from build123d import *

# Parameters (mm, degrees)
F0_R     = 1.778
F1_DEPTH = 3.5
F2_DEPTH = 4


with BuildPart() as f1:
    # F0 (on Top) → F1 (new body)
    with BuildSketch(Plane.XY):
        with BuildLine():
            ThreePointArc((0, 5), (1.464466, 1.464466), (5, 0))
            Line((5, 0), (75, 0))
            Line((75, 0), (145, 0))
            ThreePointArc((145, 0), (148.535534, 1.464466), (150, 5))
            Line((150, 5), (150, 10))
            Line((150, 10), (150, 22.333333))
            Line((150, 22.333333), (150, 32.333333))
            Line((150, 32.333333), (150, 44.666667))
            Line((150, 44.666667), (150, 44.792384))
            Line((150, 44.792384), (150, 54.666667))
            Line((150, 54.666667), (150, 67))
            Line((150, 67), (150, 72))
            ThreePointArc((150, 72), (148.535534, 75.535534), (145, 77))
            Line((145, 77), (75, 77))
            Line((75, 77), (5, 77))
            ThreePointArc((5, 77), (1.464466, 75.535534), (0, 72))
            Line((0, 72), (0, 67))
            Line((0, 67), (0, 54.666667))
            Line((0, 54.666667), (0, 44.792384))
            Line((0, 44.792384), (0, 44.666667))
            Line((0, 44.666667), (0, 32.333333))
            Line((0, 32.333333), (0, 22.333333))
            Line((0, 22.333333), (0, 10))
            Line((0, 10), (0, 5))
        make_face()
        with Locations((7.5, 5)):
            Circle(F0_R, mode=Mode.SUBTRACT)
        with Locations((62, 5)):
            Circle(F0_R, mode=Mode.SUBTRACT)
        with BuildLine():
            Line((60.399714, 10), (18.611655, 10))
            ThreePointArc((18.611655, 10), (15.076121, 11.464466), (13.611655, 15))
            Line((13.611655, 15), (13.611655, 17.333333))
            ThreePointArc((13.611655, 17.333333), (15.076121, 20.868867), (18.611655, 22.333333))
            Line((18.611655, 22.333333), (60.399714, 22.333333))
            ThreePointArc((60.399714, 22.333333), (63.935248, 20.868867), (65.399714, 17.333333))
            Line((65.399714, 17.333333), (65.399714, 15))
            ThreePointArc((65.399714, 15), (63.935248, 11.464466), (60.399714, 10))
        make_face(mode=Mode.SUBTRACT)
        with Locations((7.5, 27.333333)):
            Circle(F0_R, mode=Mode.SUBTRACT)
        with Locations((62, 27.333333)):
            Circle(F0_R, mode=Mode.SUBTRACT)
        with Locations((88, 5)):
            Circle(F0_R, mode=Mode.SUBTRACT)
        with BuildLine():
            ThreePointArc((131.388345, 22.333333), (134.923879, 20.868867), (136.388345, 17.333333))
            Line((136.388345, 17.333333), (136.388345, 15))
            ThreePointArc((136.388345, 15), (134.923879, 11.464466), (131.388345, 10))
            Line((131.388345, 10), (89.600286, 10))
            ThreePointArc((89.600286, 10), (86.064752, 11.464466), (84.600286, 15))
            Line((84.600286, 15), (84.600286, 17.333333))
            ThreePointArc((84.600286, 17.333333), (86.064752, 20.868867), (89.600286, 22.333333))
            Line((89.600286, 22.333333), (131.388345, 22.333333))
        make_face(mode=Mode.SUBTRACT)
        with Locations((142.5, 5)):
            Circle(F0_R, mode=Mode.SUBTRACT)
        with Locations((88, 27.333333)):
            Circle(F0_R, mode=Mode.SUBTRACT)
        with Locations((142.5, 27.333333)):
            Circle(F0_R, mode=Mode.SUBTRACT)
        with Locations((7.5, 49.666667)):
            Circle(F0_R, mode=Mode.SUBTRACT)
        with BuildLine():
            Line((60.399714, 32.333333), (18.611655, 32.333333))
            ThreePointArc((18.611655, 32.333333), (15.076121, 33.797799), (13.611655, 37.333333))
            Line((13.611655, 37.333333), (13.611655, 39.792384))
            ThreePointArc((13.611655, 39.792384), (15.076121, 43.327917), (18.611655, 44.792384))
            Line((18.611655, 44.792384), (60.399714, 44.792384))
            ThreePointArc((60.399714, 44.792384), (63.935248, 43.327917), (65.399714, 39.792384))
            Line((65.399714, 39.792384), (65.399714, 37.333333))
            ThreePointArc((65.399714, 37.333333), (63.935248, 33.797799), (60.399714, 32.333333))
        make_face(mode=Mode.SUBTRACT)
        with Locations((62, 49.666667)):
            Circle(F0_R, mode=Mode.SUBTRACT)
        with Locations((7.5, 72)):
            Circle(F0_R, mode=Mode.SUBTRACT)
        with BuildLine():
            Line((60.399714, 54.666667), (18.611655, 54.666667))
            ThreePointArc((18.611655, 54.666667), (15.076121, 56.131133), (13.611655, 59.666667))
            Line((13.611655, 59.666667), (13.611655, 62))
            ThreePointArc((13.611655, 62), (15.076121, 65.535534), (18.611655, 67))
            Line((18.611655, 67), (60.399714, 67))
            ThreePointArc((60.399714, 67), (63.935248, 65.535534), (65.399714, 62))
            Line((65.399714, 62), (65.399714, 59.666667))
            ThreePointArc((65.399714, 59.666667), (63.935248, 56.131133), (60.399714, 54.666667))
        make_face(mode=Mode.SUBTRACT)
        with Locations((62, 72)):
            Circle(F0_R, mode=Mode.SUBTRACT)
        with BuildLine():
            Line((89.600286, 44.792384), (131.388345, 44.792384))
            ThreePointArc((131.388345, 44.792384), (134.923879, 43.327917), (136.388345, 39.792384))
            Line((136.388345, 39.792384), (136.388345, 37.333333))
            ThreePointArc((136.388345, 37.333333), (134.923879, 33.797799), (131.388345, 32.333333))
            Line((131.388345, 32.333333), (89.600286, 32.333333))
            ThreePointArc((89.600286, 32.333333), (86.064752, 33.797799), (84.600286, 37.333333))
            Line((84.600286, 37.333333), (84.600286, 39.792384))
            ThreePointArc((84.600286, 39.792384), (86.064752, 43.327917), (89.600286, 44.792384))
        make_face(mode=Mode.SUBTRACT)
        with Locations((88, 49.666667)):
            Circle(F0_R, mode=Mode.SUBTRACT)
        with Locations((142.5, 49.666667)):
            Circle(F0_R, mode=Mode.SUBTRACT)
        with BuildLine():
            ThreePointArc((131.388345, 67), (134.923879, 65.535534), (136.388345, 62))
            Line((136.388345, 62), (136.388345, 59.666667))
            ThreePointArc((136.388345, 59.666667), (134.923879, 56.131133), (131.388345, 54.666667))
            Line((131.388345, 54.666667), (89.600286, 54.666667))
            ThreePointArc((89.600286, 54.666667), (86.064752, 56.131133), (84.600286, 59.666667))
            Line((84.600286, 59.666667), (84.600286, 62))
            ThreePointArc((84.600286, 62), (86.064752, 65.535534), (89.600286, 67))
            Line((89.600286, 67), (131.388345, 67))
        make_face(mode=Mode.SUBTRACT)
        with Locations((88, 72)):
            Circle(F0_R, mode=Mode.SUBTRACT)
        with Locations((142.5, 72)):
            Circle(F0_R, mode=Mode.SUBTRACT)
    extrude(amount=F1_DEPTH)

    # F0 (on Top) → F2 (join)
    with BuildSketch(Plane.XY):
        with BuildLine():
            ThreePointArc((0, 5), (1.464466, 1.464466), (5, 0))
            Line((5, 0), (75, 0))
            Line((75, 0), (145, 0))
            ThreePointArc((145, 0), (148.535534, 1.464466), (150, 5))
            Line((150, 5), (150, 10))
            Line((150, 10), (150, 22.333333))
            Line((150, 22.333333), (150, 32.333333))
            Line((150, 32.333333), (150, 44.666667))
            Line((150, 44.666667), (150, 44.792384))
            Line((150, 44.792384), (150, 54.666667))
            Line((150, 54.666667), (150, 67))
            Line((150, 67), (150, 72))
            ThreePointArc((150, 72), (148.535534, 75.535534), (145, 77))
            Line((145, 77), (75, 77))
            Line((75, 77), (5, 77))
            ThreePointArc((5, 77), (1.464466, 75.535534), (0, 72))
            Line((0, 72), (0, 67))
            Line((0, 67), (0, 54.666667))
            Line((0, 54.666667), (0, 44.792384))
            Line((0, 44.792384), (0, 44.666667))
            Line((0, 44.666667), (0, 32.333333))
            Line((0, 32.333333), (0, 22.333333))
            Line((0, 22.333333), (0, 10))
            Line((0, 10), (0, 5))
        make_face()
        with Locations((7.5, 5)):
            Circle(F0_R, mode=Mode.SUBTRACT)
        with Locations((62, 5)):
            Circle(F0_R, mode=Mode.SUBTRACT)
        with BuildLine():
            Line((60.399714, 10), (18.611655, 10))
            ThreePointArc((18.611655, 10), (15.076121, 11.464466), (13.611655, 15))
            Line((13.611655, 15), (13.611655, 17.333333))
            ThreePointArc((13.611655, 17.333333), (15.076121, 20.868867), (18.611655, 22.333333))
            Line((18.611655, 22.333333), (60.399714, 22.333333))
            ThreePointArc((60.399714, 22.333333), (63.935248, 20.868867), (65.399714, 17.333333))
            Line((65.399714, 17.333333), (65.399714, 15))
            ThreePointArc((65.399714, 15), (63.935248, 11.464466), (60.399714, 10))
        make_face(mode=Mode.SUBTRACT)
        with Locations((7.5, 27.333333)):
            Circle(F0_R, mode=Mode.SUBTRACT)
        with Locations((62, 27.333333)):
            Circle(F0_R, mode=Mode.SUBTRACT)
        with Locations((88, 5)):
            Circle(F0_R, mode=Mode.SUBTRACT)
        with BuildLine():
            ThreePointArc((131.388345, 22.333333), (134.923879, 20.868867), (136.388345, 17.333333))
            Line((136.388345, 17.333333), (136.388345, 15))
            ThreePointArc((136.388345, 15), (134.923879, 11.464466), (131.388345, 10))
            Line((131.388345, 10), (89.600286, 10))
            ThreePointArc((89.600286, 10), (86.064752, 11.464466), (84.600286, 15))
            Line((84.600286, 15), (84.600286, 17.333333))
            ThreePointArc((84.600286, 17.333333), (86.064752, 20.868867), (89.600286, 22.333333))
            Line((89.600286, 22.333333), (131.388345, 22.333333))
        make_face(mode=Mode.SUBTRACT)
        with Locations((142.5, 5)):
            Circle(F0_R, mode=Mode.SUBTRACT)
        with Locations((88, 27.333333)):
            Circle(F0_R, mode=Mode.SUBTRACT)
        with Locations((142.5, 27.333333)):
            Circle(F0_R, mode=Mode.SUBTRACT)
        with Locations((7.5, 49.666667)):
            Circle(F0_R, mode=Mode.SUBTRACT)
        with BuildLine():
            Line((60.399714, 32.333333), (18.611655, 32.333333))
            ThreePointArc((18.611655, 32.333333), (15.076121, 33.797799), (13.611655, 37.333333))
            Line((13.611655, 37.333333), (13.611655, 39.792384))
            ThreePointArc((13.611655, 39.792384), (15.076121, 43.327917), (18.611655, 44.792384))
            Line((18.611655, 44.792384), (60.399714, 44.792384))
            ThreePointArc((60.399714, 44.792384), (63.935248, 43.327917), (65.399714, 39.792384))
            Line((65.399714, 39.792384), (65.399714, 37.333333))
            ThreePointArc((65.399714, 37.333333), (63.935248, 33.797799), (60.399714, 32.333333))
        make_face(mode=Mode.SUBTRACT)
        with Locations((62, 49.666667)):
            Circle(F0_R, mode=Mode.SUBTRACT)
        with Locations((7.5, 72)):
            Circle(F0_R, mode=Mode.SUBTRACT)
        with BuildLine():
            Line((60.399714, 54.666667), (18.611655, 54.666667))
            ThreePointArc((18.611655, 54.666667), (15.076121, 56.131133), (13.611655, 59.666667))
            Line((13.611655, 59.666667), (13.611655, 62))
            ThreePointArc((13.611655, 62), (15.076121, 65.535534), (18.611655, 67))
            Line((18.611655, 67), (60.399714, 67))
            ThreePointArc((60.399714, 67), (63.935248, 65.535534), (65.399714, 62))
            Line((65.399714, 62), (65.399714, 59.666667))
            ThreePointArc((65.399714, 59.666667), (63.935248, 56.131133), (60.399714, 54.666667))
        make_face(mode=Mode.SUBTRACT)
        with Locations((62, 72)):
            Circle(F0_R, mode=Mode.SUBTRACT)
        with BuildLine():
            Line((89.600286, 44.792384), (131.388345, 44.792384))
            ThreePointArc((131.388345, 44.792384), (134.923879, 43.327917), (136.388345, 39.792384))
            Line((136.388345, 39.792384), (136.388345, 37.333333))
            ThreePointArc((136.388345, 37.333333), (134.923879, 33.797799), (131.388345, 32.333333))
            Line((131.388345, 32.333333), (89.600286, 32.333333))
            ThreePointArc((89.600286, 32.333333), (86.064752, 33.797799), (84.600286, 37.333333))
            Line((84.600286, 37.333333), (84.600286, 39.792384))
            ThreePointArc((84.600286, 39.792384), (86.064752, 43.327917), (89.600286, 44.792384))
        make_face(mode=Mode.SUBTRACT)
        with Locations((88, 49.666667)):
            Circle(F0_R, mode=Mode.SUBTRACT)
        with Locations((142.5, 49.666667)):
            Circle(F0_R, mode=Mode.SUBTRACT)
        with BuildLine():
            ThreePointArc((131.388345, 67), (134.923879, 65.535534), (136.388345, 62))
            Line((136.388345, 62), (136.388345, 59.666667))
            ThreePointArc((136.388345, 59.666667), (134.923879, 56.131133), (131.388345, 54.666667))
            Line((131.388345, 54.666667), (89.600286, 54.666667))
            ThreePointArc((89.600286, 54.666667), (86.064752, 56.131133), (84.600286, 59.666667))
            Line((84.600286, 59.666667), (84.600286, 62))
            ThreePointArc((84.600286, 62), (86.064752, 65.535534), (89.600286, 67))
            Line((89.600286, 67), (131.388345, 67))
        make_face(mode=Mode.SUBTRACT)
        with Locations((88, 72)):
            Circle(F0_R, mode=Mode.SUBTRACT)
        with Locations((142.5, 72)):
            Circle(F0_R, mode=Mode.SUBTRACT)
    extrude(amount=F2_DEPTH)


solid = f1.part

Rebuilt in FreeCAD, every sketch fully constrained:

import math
import FreeCAD as App
import Part
import Sketcher

V = App.Vector

doc = App.newDocument("Part")
body = doc.addObject("PartDesign::Body", "Body")

sketch1 = doc.addObject("Sketcher::SketchObject", "Sketch")
body.addObject(sketch1)
sketch1.AttachmentSupport = (doc.XY_Plane, [""])
sketch1.MapMode = "FlatFace"
sketch1.addGeometry(Part.ArcOfCircle(Part.Circle(V(5, 5, 0), V(0, 0, 1), 5), math.radians(180), math.radians(270)), False)
sketch1.addGeometry(Part.LineSegment(V(5, 0, 0), V(145, 0, 0)), False)
sketch1.addGeometry(Part.ArcOfCircle(Part.Circle(V(145, 5, 0), V(0, 0, 1), 5), math.radians(-90), math.radians(0)), False)
sketch1.addGeometry(Part.LineSegment(V(150, 5, 0), V(150, 72, 0)), False)
sketch1.addGeometry(Part.ArcOfCircle(Part.Circle(V(145, 72, 0), V(0, 0, 1), 5), math.radians(0), math.radians(90)), False)
sketch1.addGeometry(Part.LineSegment(V(145, 77, 0), V(5, 77, 0)), False)
sketch1.addGeometry(Part.ArcOfCircle(Part.Circle(V(5, 72, 0), V(0, 0, 1), 5), math.radians(90), math.radians(180)), False)
sketch1.addGeometry(Part.LineSegment(V(0, 72, 0), V(0, 5, 0)), False)
sketch1.addGeometry(Part.Circle(V(7.5, 5, 0), V(0, 0, 1), 1.8), False)
sketch1.addGeometry(Part.ArcOfCircle(Part.Circle(V(60.4, 15, 0), V(0, 0, 1), 5), math.radians(-90), math.radians(0)), False)
sketch1.addGeometry(Part.LineSegment(V(60.4, 10, 0), V(18.6, 10, 0)), False)
sketch1.addGeometry(Part.ArcOfCircle(Part.Circle(V(18.6, 15, 0), V(0, 0, 1), 5), math.radians(180), math.radians(270)), False)
sketch1.addGeometry(Part.LineSegment(V(13.6, 15, 0), V(13.6, 17.3, 0)), False)
sketch1.addGeometry(Part.ArcOfCircle(Part.Circle(V(18.6, 17.3, 0), V(0, 0, 1), 5), math.radians(90), math.radians(180)), False)
sketch1.addGeometry(Part.LineSegment(V(18.6, 22.3, 0), V(60.4, 22.3, 0)), False)
sketch1.addGeometry(Part.ArcOfCircle(Part.Circle(V(60.4, 17.3, 0), V(0, 0, 1), 5), math.radians(0), math.radians(90)), False)
sketch1.addGeometry(Part.LineSegment(V(65.4, 17.3, 0), V(65.4, 15, 0)), False)
sketch1.addGeometry(Part.Circle(V(62, 5, 0), V(0, 0, 1), 1.8), False)
sketch1.addGeometry(Part.Circle(V(7.5, 27.3, 0), V(0, 0, 1), 1.8), False)
sketch1.addGeometry(Part.Circle(V(62, 27.3, 0), V(0, 0, 1), 1.8), False)
sketch1.addGeometry(Part.Circle(V(88, 5, 0), V(0, 0, 1), 1.8), False)
sketch1.addGeometry(Part.Circle(V(142.5, 5, 0), V(0, 0, 1), 1.8), False)
sketch1.addGeometry(Part.LineSegment(V(89.6, 22.3, 0), V(131.4, 22.3, 0)), False)
sketch1.addGeometry(Part.ArcOfCircle(Part.Circle(V(131.4, 17.3, 0), V(0, 0, 1), 5), math.radians(0), math.radians(90)), False)
sketch1.addGeometry(Part.LineSegment(V(136.4, 17.3, 0), V(136.4, 15, 0)), False)
sketch1.addGeometry(Part.ArcOfCircle(Part.Circle(V(131.4, 15, 0), V(0, 0, 1), 5), math.radians(-90), math.radians(0)), False)
sketch1.addGeometry(Part.LineSegment(V(131.4, 10, 0), V(89.6, 10, 0)), False)
sketch1.addGeometry(Part.ArcOfCircle(Part.Circle(V(89.6, 15, 0), V(0, 0, 1), 5), math.radians(180), math.radians(270)), False)
sketch1.addGeometry(Part.LineSegment(V(84.6, 15, 0), V(84.6, 17.3, 0)), False)
sketch1.addGeometry(Part.ArcOfCircle(Part.Circle(V(89.6, 17.3, 0), V(0, 0, 1), 5), math.radians(90), math.radians(180)), False)
sketch1.addGeometry(Part.Circle(V(88, 27.3, 0), V(0, 0, 1), 1.8), False)
sketch1.addGeometry(Part.Circle(V(142.5, 27.3, 0), V(0, 0, 1), 1.8), False)
sketch1.addGeometry(Part.ArcOfCircle(Part.Circle(V(60.4, 37.3, 0), V(0, 0, 1), 5), math.radians(-90), math.radians(0)), False)
sketch1.addGeometry(Part.LineSegment(V(60.4, 32.3, 0), V(18.6, 32.3, 0)), False)
sketch1.addGeometry(Part.ArcOfCircle(Part.Circle(V(18.6, 37.3, 0), V(0, 0, 1), 5), math.radians(180), math.radians(270)), False)
sketch1.addGeometry(Part.LineSegment(V(13.6, 37.3, 0), V(13.6, 39.8, 0)), False)
sketch1.addGeometry(Part.ArcOfCircle(Part.Circle(V(18.6, 39.8, 0), V(0, 0, 1), 5), math.radians(90), math.radians(180)), False)
sketch1.addGeometry(Part.LineSegment(V(18.6, 44.8, 0), V(60.4, 44.8, 0)), False)
sketch1.addGeometry(Part.ArcOfCircle(Part.Circle(V(60.4, 39.8, 0), V(0, 0, 1), 5), math.radians(0), math.radians(90)), False)
sketch1.addGeometry(Part.LineSegment(V(65.4, 39.8, 0), V(65.4, 37.3, 0)), False)
sketch1.addGeometry(Part.Circle(V(7.5, 49.7, 0), V(0, 0, 1), 1.8), False)
sketch1.addGeometry(Part.Circle(V(62, 49.7, 0), V(0, 0, 1), 1.8), False)
sketch1.addGeometry(Part.ArcOfCircle(Part.Circle(V(60.4, 59.7, 0), V(0, 0, 1), 5), math.radians(-90), math.radians(0)), False)
sketch1.addGeometry(Part.LineSegment(V(60.4, 54.7, 0), V(18.6, 54.7, 0)), False)
sketch1.addGeometry(Part.ArcOfCircle(Part.Circle(V(18.6, 59.7, 0), V(0, 0, 1), 5), math.radians(180), math.radians(270)), False)
sketch1.addGeometry(Part.LineSegment(V(13.6, 59.7, 0), V(13.6, 62, 0)), False)
sketch1.addGeometry(Part.ArcOfCircle(Part.Circle(V(18.6, 62, 0), V(0, 0, 1), 5), math.radians(90), math.radians(180)), False)
sketch1.addGeometry(Part.LineSegment(V(18.6, 67, 0), V(60.4, 67, 0)), False)
sketch1.addGeometry(Part.ArcOfCircle(Part.Circle(V(60.4, 62, 0), V(0, 0, 1), 5), math.radians(0), math.radians(90)), False)
sketch1.addGeometry(Part.LineSegment(V(65.4, 62, 0), V(65.4, 59.7, 0)), False)
sketch1.addGeometry(Part.Circle(V(7.5, 72, 0), V(0, 0, 1), 1.8), False)
sketch1.addGeometry(Part.Circle(V(62, 72, 0), V(0, 0, 1), 1.8), False)
sketch1.addGeometry(Part.Circle(V(88, 49.7, 0), V(0, 0, 1), 1.8), False)
sketch1.addGeometry(Part.ArcOfCircle(Part.Circle(V(89.6, 39.8, 0), V(0, 0, 1), 5), math.radians(90), math.radians(180)), False)
sketch1.addGeometry(Part.LineSegment(V(89.6, 44.8, 0), V(131.4, 44.8, 0)), False)
sketch1.addGeometry(Part.ArcOfCircle(Part.Circle(V(131.4, 39.8, 0), V(0, 0, 1), 5), math.radians(0), math.radians(90)), False)
sketch1.addGeometry(Part.LineSegment(V(136.4, 39.8, 0), V(136.4, 37.3, 0)), False)
sketch1.addGeometry(Part.ArcOfCircle(Part.Circle(V(131.4, 37.3, 0), V(0, 0, 1), 5), math.radians(-90), math.radians(0)), False)
sketch1.addGeometry(Part.LineSegment(V(131.4, 32.3, 0), V(89.6, 32.3, 0)), False)
sketch1.addGeometry(Part.ArcOfCircle(Part.Circle(V(89.6, 37.3, 0), V(0, 0, 1), 5), math.radians(180), math.radians(270)), False)
sketch1.addGeometry(Part.LineSegment(V(84.6, 37.3, 0), V(84.6, 39.8, 0)), False)
sketch1.addGeometry(Part.Circle(V(142.5, 49.7, 0), V(0, 0, 1), 1.8), False)
sketch1.addGeometry(Part.Circle(V(88, 72, 0), V(0, 0, 1), 1.8), False)
sketch1.addGeometry(Part.LineSegment(V(89.6, 67, 0), V(131.4, 67, 0)), False)
sketch1.addGeometry(Part.ArcOfCircle(Part.Circle(V(131.4, 62, 0), V(0, 0, 1), 5), math.radians(0), math.radians(90)), False)
sketch1.addGeometry(Part.LineSegment(V(136.4, 62, 0), V(136.4, 59.7, 0)), False)
sketch1.addGeometry(Part.ArcOfCircle(Part.Circle(V(131.4, 59.7, 0), V(0, 0, 1), 5), math.radians(-90), math.radians(0)), False)
sketch1.addGeometry(Part.LineSegment(V(131.4, 54.7, 0), V(89.6, 54.7, 0)), False)
sketch1.addGeometry(Part.ArcOfCircle(Part.Circle(V(89.6, 59.7, 0), V(0, 0, 1), 5), math.radians(180), math.radians(270)), False)
sketch1.addGeometry(Part.LineSegment(V(84.6, 59.7, 0), V(84.6, 62, 0)), False)
sketch1.addGeometry(Part.ArcOfCircle(Part.Circle(V(89.6, 62, 0), V(0, 0, 1), 5), math.radians(90), math.radians(180)), False)
sketch1.addGeometry(Part.Circle(V(142.5, 72, 0), V(0, 0, 1), 1.8), False)
sketch1.addConstraint(Sketcher.Constraint("Tangent", 0, 2, 1, 1))
sketch1.addConstraint(Sketcher.Constraint("Tangent", 1, 2, 2, 1))
sketch1.addConstraint(Sketcher.Constraint("Tangent", 2, 2, 3, 1))
sketch1.addConstraint(Sketcher.Constraint("Tangent", 3, 2, 4, 1))
sketch1.addConstraint(Sketcher.Constraint("Tangent", 4, 2, 5, 1))
sketch1.addConstraint(Sketcher.Constraint("Tangent", 5, 2, 6, 1))
sketch1.addConstraint(Sketcher.Constraint("Tangent", 6, 2, 7, 1))
sketch1.addConstraint(Sketcher.Constraint("Tangent", 7, 2, 0, 1))
sketch1.addConstraint(Sketcher.Constraint("Tangent", 9, 1, 10, 1))
sketch1.addConstraint(Sketcher.Constraint("Tangent", 10, 2, 11, 2))
sketch1.addConstraint(Sketcher.Constraint("Tangent", 11, 1, 12, 1))
sketch1.addConstraint(Sketcher.Constraint("Tangent", 12, 2, 13, 2))
sketch1.addConstraint(Sketcher.Constraint("Tangent", 13, 1, 14, 1))
sketch1.addConstraint(Sketcher.Constraint("Tangent", 14, 2, 15, 2))
sketch1.addConstraint(Sketcher.Constraint("Tangent", 15, 1, 16, 1))
sketch1.addConstraint(Sketcher.Constraint("Tangent", 16, 2, 9, 2))
sketch1.addConstraint(Sketcher.Constraint("Tangent", 22, 2, 23, 2))
sketch1.addConstraint(Sketcher.Constraint("Tangent", 23, 1, 24, 1))
sketch1.addConstraint(Sketcher.Constraint("Tangent", 24, 2, 25, 2))
sketch1.addConstraint(Sketcher.Constraint("Tangent", 25, 1, 26, 1))
sketch1.addConstraint(Sketcher.Constraint("Tangent", 26, 2, 27, 2))
sketch1.addConstraint(Sketcher.Constraint("Tangent", 27, 1, 28, 1))
sketch1.addConstraint(Sketcher.Constraint("Tangent", 28, 2, 29, 2))
sketch1.addConstraint(Sketcher.Constraint("Tangent", 29, 1, 22, 1))
sketch1.addConstraint(Sketcher.Constraint("Tangent", 32, 1, 33, 1))
sketch1.addConstraint(Sketcher.Constraint("Tangent", 33, 2, 34, 2))
sketch1.addConstraint(Sketcher.Constraint("Tangent", 34, 1, 35, 1))
sketch1.addConstraint(Sketcher.Constraint("Tangent", 35, 2, 36, 2))
sketch1.addConstraint(Sketcher.Constraint("Tangent", 36, 1, 37, 1))
sketch1.addConstraint(Sketcher.Constraint("Tangent", 37, 2, 38, 2))
sketch1.addConstraint(Sketcher.Constraint("Tangent", 38, 1, 39, 1))
sketch1.addConstraint(Sketcher.Constraint("Tangent", 39, 2, 32, 2))
sketch1.addConstraint(Sketcher.Constraint("Tangent", 42, 1, 43, 1))
sketch1.addConstraint(Sketcher.Constraint("Tangent", 43, 2, 44, 2))
sketch1.addConstraint(Sketcher.Constraint("Tangent", 44, 1, 45, 1))
sketch1.addConstraint(Sketcher.Constraint("Tangent", 45, 2, 46, 2))
sketch1.addConstraint(Sketcher.Constraint("Tangent", 46, 1, 47, 1))
sketch1.addConstraint(Sketcher.Constraint("Tangent", 47, 2, 48, 2))
sketch1.addConstraint(Sketcher.Constraint("Tangent", 48, 1, 49, 1))
sketch1.addConstraint(Sketcher.Constraint("Tangent", 49, 2, 42, 2))
sketch1.addConstraint(Sketcher.Constraint("Tangent", 53, 1, 54, 1))
sketch1.addConstraint(Sketcher.Constraint("Tangent", 54, 2, 55, 2))
sketch1.addConstraint(Sketcher.Constraint("Tangent", 55, 1, 56, 1))
sketch1.addConstraint(Sketcher.Constraint("Tangent", 56, 2, 57, 2))
sketch1.addConstraint(Sketcher.Constraint("Tangent", 57, 1, 58, 1))
sketch1.addConstraint(Sketcher.Constraint("Tangent", 58, 2, 59, 2))
sketch1.addConstraint(Sketcher.Constraint("Tangent", 59, 1, 60, 1))
sketch1.addConstraint(Sketcher.Constraint("Tangent", 60, 2, 53, 2))
sketch1.addConstraint(Sketcher.Constraint("Tangent", 63, 2, 64, 2))
sketch1.addConstraint(Sketcher.Constraint("Tangent", 64, 1, 65, 1))
sketch1.addConstraint(Sketcher.Constraint("Tangent", 65, 2, 66, 2))
sketch1.addConstraint(Sketcher.Constraint("Tangent", 66, 1, 67, 1))
sketch1.addConstraint(Sketcher.Constraint("Tangent", 67, 2, 68, 2))
sketch1.addConstraint(Sketcher.Constraint("Tangent", 68, 1, 69, 1))
sketch1.addConstraint(Sketcher.Constraint("Tangent", 69, 2, 70, 2))
sketch1.addConstraint(Sketcher.Constraint("Tangent", 70, 1, 63, 1))
sketch1.addConstraint(Sketcher.Constraint("Horizontal", 1))
sketch1.addConstraint(Sketcher.Constraint("Vertical", 3))
sketch1.addConstraint(Sketcher.Constraint("Horizontal", 5))
sketch1.addConstraint(Sketcher.Constraint("Vertical", 7))
sketch1.addConstraint(Sketcher.Constraint("Horizontal", 10))
sketch1.addConstraint(Sketcher.Constraint("Vertical", 12))
sketch1.addConstraint(Sketcher.Constraint("Horizontal", 14))
sketch1.addConstraint(Sketcher.Constraint("Vertical", 16))
sketch1.addConstraint(Sketcher.Constraint("Horizontal", 22))
sketch1.addConstraint(Sketcher.Constraint("Vertical", 24))
sketch1.addConstraint(Sketcher.Constraint("Horizontal", 26))
sketch1.addConstraint(Sketcher.Constraint("Vertical", 28))
sketch1.addConstraint(Sketcher.Constraint("Horizontal", 33))
sketch1.addConstraint(Sketcher.Constraint("Vertical", 35))
sketch1.addConstraint(Sketcher.Constraint("Horizontal", 37))
sketch1.addConstraint(Sketcher.Constraint("Vertical", 39))
sketch1.addConstraint(Sketcher.Constraint("Horizontal", 43))
sketch1.addConstraint(Sketcher.Constraint("Vertical", 45))
sketch1.addConstraint(Sketcher.Constraint("Horizontal", 47))
sketch1.addConstraint(Sketcher.Constraint("Vertical", 49))
sketch1.addConstraint(Sketcher.Constraint("Horizontal", 54))
sketch1.addConstraint(Sketcher.Constraint("Vertical", 56))
sketch1.addConstraint(Sketcher.Constraint("Horizontal", 58))
sketch1.addConstraint(Sketcher.Constraint("Vertical", 60))
sketch1.addConstraint(Sketcher.Constraint("Horizontal", 63))
sketch1.addConstraint(Sketcher.Constraint("Vertical", 65))
sketch1.addConstraint(Sketcher.Constraint("Horizontal", 67))
sketch1.addConstraint(Sketcher.Constraint("Vertical", 69))
sketch1.addConstraint(Sketcher.Constraint("Equal", 0, 2))
sketch1.addConstraint(Sketcher.Constraint("Equal", 2, 4))
sketch1.addConstraint(Sketcher.Constraint("Equal", 4, 6))
sketch1.addConstraint(Sketcher.Constraint("Equal", 6, 9))
sketch1.addConstraint(Sketcher.Constraint("Equal", 9, 11))
sketch1.addConstraint(Sketcher.Constraint("Equal", 11, 13))
sketch1.addConstraint(Sketcher.Constraint("Equal", 13, 15))
sketch1.addConstraint(Sketcher.Constraint("Equal", 8, 17))
sketch1.addConstraint(Sketcher.Constraint("Equal", 17, 18))
sketch1.addConstraint(Sketcher.Constraint("Equal", 18, 19))
sketch1.addConstraint(Sketcher.Constraint("Equal", 19, 20))
sketch1.addConstraint(Sketcher.Constraint("Equal", 20, 21))
sketch1.addConstraint(Sketcher.Constraint("Equal", 15, 23))
sketch1.addConstraint(Sketcher.Constraint("Equal", 23, 25))
sketch1.addConstraint(Sketcher.Constraint("Equal", 25, 27))
sketch1.addConstraint(Sketcher.Constraint("Equal", 27, 29))
sketch1.addConstraint(Sketcher.Constraint("Equal", 21, 30))
sketch1.addConstraint(Sketcher.Constraint("Equal", 30, 31))
sketch1.addConstraint(Sketcher.Constraint("Equal", 29, 32))
sketch1.addConstraint(Sketcher.Constraint("Equal", 32, 34))
sketch1.addConstraint(Sketcher.Constraint("Equal", 34, 36))
sketch1.addConstraint(Sketcher.Constraint("Equal", 36, 38))
sketch1.addConstraint(Sketcher.Constraint("Equal", 31, 40))
sketch1.addConstraint(Sketcher.Constraint("Equal", 40, 41))
sketch1.addConstraint(Sketcher.Constraint("Equal", 38, 42))
sketch1.addConstraint(Sketcher.Constraint("Equal", 42, 44))
sketch1.addConstraint(Sketcher.Constraint("Equal", 44, 46))
sketch1.addConstraint(Sketcher.Constraint("Equal", 46, 48))
sketch1.addConstraint(Sketcher.Constraint("Equal", 41, 50))
sketch1.addConstraint(Sketcher.Constraint("Equal", 50, 51))
sketch1.addConstraint(Sketcher.Constraint("Equal", 51, 52))
sketch1.addConstraint(Sketcher.Constraint("Equal", 48, 53))
sketch1.addConstraint(Sketcher.Constraint("Equal", 53, 55))
sketch1.addConstraint(Sketcher.Constraint("Equal", 55, 57))
sketch1.addConstraint(Sketcher.Constraint("Equal", 57, 59))
sketch1.addConstraint(Sketcher.Constraint("Equal", 52, 61))
sketch1.addConstraint(Sketcher.Constraint("Equal", 61, 62))
sketch1.addConstraint(Sketcher.Constraint("Equal", 59, 64))
sketch1.addConstraint(Sketcher.Constraint("Equal", 64, 66))
sketch1.addConstraint(Sketcher.Constraint("Equal", 66, 68))
sketch1.addConstraint(Sketcher.Constraint("Equal", 68, 70))
sketch1.addConstraint(Sketcher.Constraint("Equal", 62, 71))
sketch1.addConstraint(Sketcher.Constraint("PointOnObject", 0, 2, -1))
sketch1.addConstraint(Sketcher.Constraint("PointOnObject", 6, 2, -2))
sketch1.addConstraint(Sketcher.Constraint("Horizontal", 2, 3, 8, 3))
sketch1.addConstraint(Sketcher.Constraint("Horizontal", 8, 3, 17, 3))
sketch1.addConstraint(Sketcher.Constraint("Horizontal", 18, 3, 19, 3))
sketch1.addConstraint(Sketcher.Constraint("Horizontal", 17, 3, 20, 3))
sketch1.addConstraint(Sketcher.Constraint("Horizontal", 20, 3, 21, 3))
sketch1.addConstraint(Sketcher.Constraint("Horizontal", 15, 3, 23, 3))
sketch1.addConstraint(Sketcher.Constraint("Horizontal", 11, 3, 25, 3))
sketch1.addConstraint(Sketcher.Constraint("Horizontal", 19, 3, 30, 3))
sketch1.addConstraint(Sketcher.Constraint("Horizontal", 30, 3, 31, 3))
sketch1.addConstraint(Sketcher.Constraint("Horizontal", 40, 3, 41, 3))
sketch1.addConstraint(Sketcher.Constraint("Horizontal", 6, 3, 50, 3))
sketch1.addConstraint(Sketcher.Constraint("Horizontal", 50, 3, 51, 3))
sketch1.addConstraint(Sketcher.Constraint("Horizontal", 41, 3, 52, 3))
sketch1.addConstraint(Sketcher.Constraint("Horizontal", 38, 3, 53, 3))
sketch1.addConstraint(Sketcher.Constraint("Horizontal", 34, 3, 57, 3))
sketch1.addConstraint(Sketcher.Constraint("Horizontal", 52, 3, 61, 3))
sketch1.addConstraint(Sketcher.Constraint("Horizontal", 51, 3, 62, 3))
sketch1.addConstraint(Sketcher.Constraint("Horizontal", 48, 3, 64, 3))
sketch1.addConstraint(Sketcher.Constraint("Horizontal", 44, 3, 66, 3))
sketch1.addConstraint(Sketcher.Constraint("Horizontal", 62, 3, 71, 3))
sketch1.addConstraint(Sketcher.Constraint("Vertical", 8, 3, 18, 3))
sketch1.addConstraint(Sketcher.Constraint("Vertical", 17, 3, 19, 3))
sketch1.addConstraint(Sketcher.Constraint("Vertical", 20, 3, 30, 3))
sketch1.addConstraint(Sketcher.Constraint("Vertical", 21, 3, 31, 3))
sketch1.addConstraint(Sketcher.Constraint("Vertical", 15, 3, 32, 3))
sketch1.addConstraint(Sketcher.Constraint("Vertical", 13, 3, 34, 3))
sketch1.addConstraint(Sketcher.Constraint("Vertical", 18, 3, 40, 3))
sketch1.addConstraint(Sketcher.Constraint("Vertical", 19, 3, 41, 3))
sketch1.addConstraint(Sketcher.Constraint("Vertical", 38, 3, 42, 3))
sketch1.addConstraint(Sketcher.Constraint("Vertical", 36, 3, 44, 3))
sketch1.addConstraint(Sketcher.Constraint("Vertical", 40, 3, 50, 3))
sketch1.addConstraint(Sketcher.Constraint("Vertical", 41, 3, 51, 3))
sketch1.addConstraint(Sketcher.Constraint("Vertical", 30, 3, 52, 3))
sketch1.addConstraint(Sketcher.Constraint("Vertical", 29, 3, 53, 3))
sketch1.addConstraint(Sketcher.Constraint("Vertical", 25, 3, 55, 3))
sketch1.addConstraint(Sketcher.Constraint("Vertical", 31, 3, 61, 3))
sketch1.addConstraint(Sketcher.Constraint("Vertical", 52, 3, 62, 3))
sketch1.addConstraint(Sketcher.Constraint("Vertical", 57, 3, 64, 3))
sketch1.addConstraint(Sketcher.Constraint("Vertical", 59, 3, 68, 3))
sketch1.addConstraint(Sketcher.Constraint("Vertical", 61, 3, 71, 3))
sketch1.addConstraint(Sketcher.Constraint("Equal", 14, 22))
sketch1.addConstraint(Sketcher.Constraint("Equal", 28, 45))
sketch1.addConstraint(Sketcher.Constraint("Radius", 0, 5.0))
sketch1.addConstraint(Sketcher.Constraint("DistanceX", 1, 1, 1, 2, 140.0))
sketch1.addConstraint(Sketcher.Constraint("DistanceY", 3, 1, 3, 2, 67.0))
sketch1.addConstraint(Sketcher.Constraint("Diameter", 8, 3.556))
sketch1.addConstraint(Sketcher.Constraint("DistanceY", -1, 1, 9, 3, 15.0))
sketch1.addConstraint(Sketcher.Constraint("DistanceX", -1, 1, 17, 3, 62.0))
sketch1.addConstraint(Sketcher.Constraint("DistanceX", -1, 1, 20, 3, 88.0))
sketch1.addConstraint(Sketcher.Constraint("DistanceY", -1, 1, 46, 3, 62.0))
sketch1.addConstraint(Sketcher.Constraint("DistanceX", -1, 1, 8, 3, 7.5))
sketch1.addConstraint(Sketcher.Constraint("DistanceX", -1, 1, 21, 3, 142.5))
sketch1.addConstraint(Sketcher.Constraint("DistanceX", 10, 2, 10, 1, 41.788059))
sketch1.addConstraint(Sketcher.Constraint("DistanceY", 35, 1, 35, 2, 2.459051))
sketch1.addConstraint(Sketcher.Constraint("DistanceY", 12, 1, 12, 2, 2.333333))
sketch1.addConstraint(Sketcher.Constraint("DistanceX", -1, 1, 9, 3, 60.399714))
sketch1.addConstraint(Sketcher.Constraint("DistanceY", -1, 1, 18, 3, 27.333333))
sketch1.addConstraint(Sketcher.Constraint("DistanceX", -1, 1, 23, 3, 131.388345))
sketch1.addConstraint(Sketcher.Constraint("DistanceY", -1, 1, 32, 3, 37.333333))
sketch1.addConstraint(Sketcher.Constraint("DistanceY", -1, 1, 40, 3, 49.666667))
pad1 = doc.addObject("PartDesign::Pad", "Pad")
body.addObject(pad1)
pad1.Profile = sketch1
pad1.Length = 3.5

sketch2 = doc.addObject("Sketcher::SketchObject", "Sketch001")
body.addObject(sketch2)
sketch2.AttachmentSupport = (doc.XY_Plane, [""])
sketch2.MapMode = "FlatFace"
sketch2.addGeometry(Part.ArcOfCircle(Part.Circle(V(5, 5, 0), V(0, 0, 1), 5), math.radians(180), math.radians(270)), False)
sketch2.addGeometry(Part.LineSegment(V(5, 0, 0), V(145, 0, 0)), False)
sketch2.addGeometry(Part.ArcOfCircle(Part.Circle(V(145, 5, 0), V(0, 0, 1), 5), math.radians(-90), math.radians(0)), False)
sketch2.addGeometry(Part.LineSegment(V(150, 5, 0), V(150, 72, 0)), False)
sketch2.addGeometry(Part.ArcOfCircle(Part.Circle(V(145, 72, 0), V(0, 0, 1), 5), math.radians(0), math.radians(90)), False)
sketch2.addGeometry(Part.LineSegment(V(145, 77, 0), V(5, 77, 0)), False)
sketch2.addGeometry(Part.ArcOfCircle(Part.Circle(V(5, 72, 0), V(0, 0, 1), 5), math.radians(90), math.radians(180)), False)
sketch2.addGeometry(Part.LineSegment(V(0, 72, 0), V(0, 5, 0)), False)
sketch2.addGeometry(Part.Circle(V(7.5, 5, 0), V(0, 0, 1), 1.8), False)
sketch2.addGeometry(Part.ArcOfCircle(Part.Circle(V(60.4, 15, 0), V(0, 0, 1), 5), math.radians(-90), math.radians(0)), False)
sketch2.addGeometry(Part.LineSegment(V(60.4, 10, 0), V(18.6, 10, 0)), False)
sketch2.addGeometry(Part.ArcOfCircle(Part.Circle(V(18.6, 15, 0), V(0, 0, 1), 5), math.radians(180), math.radians(270)), False)
sketch2.addGeometry(Part.LineSegment(V(13.6, 15, 0), V(13.6, 17.3, 0)), False)
sketch2.addGeometry(Part.ArcOfCircle(Part.Circle(V(18.6, 17.3, 0), V(0, 0, 1), 5), math.radians(90), math.radians(180)), False)
sketch2.addGeometry(Part.LineSegment(V(18.6, 22.3, 0), V(60.4, 22.3, 0)), False)
sketch2.addGeometry(Part.ArcOfCircle(Part.Circle(V(60.4, 17.3, 0), V(0, 0, 1), 5), math.radians(0), math.radians(90)), False)
sketch2.addGeometry(Part.LineSegment(V(65.4, 17.3, 0), V(65.4, 15, 0)), False)
sketch2.addGeometry(Part.Circle(V(62, 5, 0), V(0, 0, 1), 1.8), False)
sketch2.addGeometry(Part.Circle(V(7.5, 27.3, 0), V(0, 0, 1), 1.8), False)
sketch2.addGeometry(Part.Circle(V(62, 27.3, 0), V(0, 0, 1), 1.8), False)
sketch2.addGeometry(Part.Circle(V(88, 5, 0), V(0, 0, 1), 1.8), False)
sketch2.addGeometry(Part.Circle(V(142.5, 5, 0), V(0, 0, 1), 1.8), False)
sketch2.addGeometry(Part.LineSegment(V(89.6, 22.3, 0), V(131.4, 22.3, 0)), False)
sketch2.addGeometry(Part.ArcOfCircle(Part.Circle(V(131.4, 17.3, 0), V(0, 0, 1), 5), math.radians(0), math.radians(90)), False)
sketch2.addGeometry(Part.LineSegment(V(136.4, 17.3, 0), V(136.4, 15, 0)), False)
sketch2.addGeometry(Part.ArcOfCircle(Part.Circle(V(131.4, 15, 0), V(0, 0, 1), 5), math.radians(-90), math.radians(0)), False)
sketch2.addGeometry(Part.LineSegment(V(131.4, 10, 0), V(89.6, 10, 0)), False)
sketch2.addGeometry(Part.ArcOfCircle(Part.Circle(V(89.6, 15, 0), V(0, 0, 1), 5), math.radians(180), math.radians(270)), False)
sketch2.addGeometry(Part.LineSegment(V(84.6, 15, 0), V(84.6, 17.3, 0)), False)
sketch2.addGeometry(Part.ArcOfCircle(Part.Circle(V(89.6, 17.3, 0), V(0, 0, 1), 5), math.radians(90), math.radians(180)), False)
sketch2.addGeometry(Part.Circle(V(88, 27.3, 0), V(0, 0, 1), 1.8), False)
sketch2.addGeometry(Part.Circle(V(142.5, 27.3, 0), V(0, 0, 1), 1.8), False)
sketch2.addGeometry(Part.ArcOfCircle(Part.Circle(V(60.4, 37.3, 0), V(0, 0, 1), 5), math.radians(-90), math.radians(0)), False)
sketch2.addGeometry(Part.LineSegment(V(60.4, 32.3, 0), V(18.6, 32.3, 0)), False)
sketch2.addGeometry(Part.ArcOfCircle(Part.Circle(V(18.6, 37.3, 0), V(0, 0, 1), 5), math.radians(180), math.radians(270)), False)
sketch2.addGeometry(Part.LineSegment(V(13.6, 37.3, 0), V(13.6, 39.8, 0)), False)
sketch2.addGeometry(Part.ArcOfCircle(Part.Circle(V(18.6, 39.8, 0), V(0, 0, 1), 5), math.radians(90), math.radians(180)), False)
sketch2.addGeometry(Part.LineSegment(V(18.6, 44.8, 0), V(60.4, 44.8, 0)), False)
sketch2.addGeometry(Part.ArcOfCircle(Part.Circle(V(60.4, 39.8, 0), V(0, 0, 1), 5), math.radians(0), math.radians(90)), False)
sketch2.addGeometry(Part.LineSegment(V(65.4, 39.8, 0), V(65.4, 37.3, 0)), False)
sketch2.addGeometry(Part.Circle(V(7.5, 49.7, 0), V(0, 0, 1), 1.8), False)
sketch2.addGeometry(Part.Circle(V(62, 49.7, 0), V(0, 0, 1), 1.8), False)
sketch2.addGeometry(Part.ArcOfCircle(Part.Circle(V(60.4, 59.7, 0), V(0, 0, 1), 5), math.radians(-90), math.radians(0)), False)
sketch2.addGeometry(Part.LineSegment(V(60.4, 54.7, 0), V(18.6, 54.7, 0)), False)
sketch2.addGeometry(Part.ArcOfCircle(Part.Circle(V(18.6, 59.7, 0), V(0, 0, 1), 5), math.radians(180), math.radians(270)), False)
sketch2.addGeometry(Part.LineSegment(V(13.6, 59.7, 0), V(13.6, 62, 0)), False)
sketch2.addGeometry(Part.ArcOfCircle(Part.Circle(V(18.6, 62, 0), V(0, 0, 1), 5), math.radians(90), math.radians(180)), False)
sketch2.addGeometry(Part.LineSegment(V(18.6, 67, 0), V(60.4, 67, 0)), False)
sketch2.addGeometry(Part.ArcOfCircle(Part.Circle(V(60.4, 62, 0), V(0, 0, 1), 5), math.radians(0), math.radians(90)), False)
sketch2.addGeometry(Part.LineSegment(V(65.4, 62, 0), V(65.4, 59.7, 0)), False)
sketch2.addGeometry(Part.Circle(V(7.5, 72, 0), V(0, 0, 1), 1.8), False)
sketch2.addGeometry(Part.Circle(V(62, 72, 0), V(0, 0, 1), 1.8), False)
sketch2.addGeometry(Part.Circle(V(88, 49.7, 0), V(0, 0, 1), 1.8), False)
sketch2.addGeometry(Part.ArcOfCircle(Part.Circle(V(89.6, 39.8, 0), V(0, 0, 1), 5), math.radians(90), math.radians(180)), False)
sketch2.addGeometry(Part.LineSegment(V(89.6, 44.8, 0), V(131.4, 44.8, 0)), False)
sketch2.addGeometry(Part.ArcOfCircle(Part.Circle(V(131.4, 39.8, 0), V(0, 0, 1), 5), math.radians(0), math.radians(90)), False)
sketch2.addGeometry(Part.LineSegment(V(136.4, 39.8, 0), V(136.4, 37.3, 0)), False)
sketch2.addGeometry(Part.ArcOfCircle(Part.Circle(V(131.4, 37.3, 0), V(0, 0, 1), 5), math.radians(-90), math.radians(0)), False)
sketch2.addGeometry(Part.LineSegment(V(131.4, 32.3, 0), V(89.6, 32.3, 0)), False)
sketch2.addGeometry(Part.ArcOfCircle(Part.Circle(V(89.6, 37.3, 0), V(0, 0, 1), 5), math.radians(180), math.radians(270)), False)
sketch2.addGeometry(Part.LineSegment(V(84.6, 37.3, 0), V(84.6, 39.8, 0)), False)
sketch2.addGeometry(Part.Circle(V(142.5, 49.7, 0), V(0, 0, 1), 1.8), False)
sketch2.addGeometry(Part.Circle(V(88, 72, 0), V(0, 0, 1), 1.8), False)
sketch2.addGeometry(Part.LineSegment(V(89.6, 67, 0), V(131.4, 67, 0)), False)
sketch2.addGeometry(Part.ArcOfCircle(Part.Circle(V(131.4, 62, 0), V(0, 0, 1), 5), math.radians(0), math.radians(90)), False)
sketch2.addGeometry(Part.LineSegment(V(136.4, 62, 0), V(136.4, 59.7, 0)), False)
sketch2.addGeometry(Part.ArcOfCircle(Part.Circle(V(131.4, 59.7, 0), V(0, 0, 1), 5), math.radians(-90), math.radians(0)), False)
sketch2.addGeometry(Part.LineSegment(V(131.4, 54.7, 0), V(89.6, 54.7, 0)), False)
sketch2.addGeometry(Part.ArcOfCircle(Part.Circle(V(89.6, 59.7, 0), V(0, 0, 1), 5), math.radians(180), math.radians(270)), False)
sketch2.addGeometry(Part.LineSegment(V(84.6, 59.7, 0), V(84.6, 62, 0)), False)
sketch2.addGeometry(Part.ArcOfCircle(Part.Circle(V(89.6, 62, 0), V(0, 0, 1), 5), math.radians(90), math.radians(180)), False)
sketch2.addGeometry(Part.Circle(V(142.5, 72, 0), V(0, 0, 1), 1.8), False)
sketch2.addConstraint(Sketcher.Constraint("Tangent", 0, 2, 1, 1))
sketch2.addConstraint(Sketcher.Constraint("Tangent", 1, 2, 2, 1))
sketch2.addConstraint(Sketcher.Constraint("Tangent", 2, 2, 3, 1))
sketch2.addConstraint(Sketcher.Constraint("Tangent", 3, 2, 4, 1))
sketch2.addConstraint(Sketcher.Constraint("Tangent", 4, 2, 5, 1))
sketch2.addConstraint(Sketcher.Constraint("Tangent", 5, 2, 6, 1))
sketch2.addConstraint(Sketcher.Constraint("Tangent", 6, 2, 7, 1))
sketch2.addConstraint(Sketcher.Constraint("Tangent", 7, 2, 0, 1))
sketch2.addConstraint(Sketcher.Constraint("Tangent", 9, 1, 10, 1))
sketch2.addConstraint(Sketcher.Constraint("Tangent", 10, 2, 11, 2))
sketch2.addConstraint(Sketcher.Constraint("Tangent", 11, 1, 12, 1))
sketch2.addConstraint(Sketcher.Constraint("Tangent", 12, 2, 13, 2))
sketch2.addConstraint(Sketcher.Constraint("Tangent", 13, 1, 14, 1))
sketch2.addConstraint(Sketcher.Constraint("Tangent", 14, 2, 15, 2))
sketch2.addConstraint(Sketcher.Constraint("Tangent", 15, 1, 16, 1))
sketch2.addConstraint(Sketcher.Constraint("Tangent", 16, 2, 9, 2))
sketch2.addConstraint(Sketcher.Constraint("Tangent", 22, 2, 23, 2))
sketch2.addConstraint(Sketcher.Constraint("Tangent", 23, 1, 24, 1))
sketch2.addConstraint(Sketcher.Constraint("Tangent", 24, 2, 25, 2))
sketch2.addConstraint(Sketcher.Constraint("Tangent", 25, 1, 26, 1))
sketch2.addConstraint(Sketcher.Constraint("Tangent", 26, 2, 27, 2))
sketch2.addConstraint(Sketcher.Constraint("Tangent", 27, 1, 28, 1))
sketch2.addConstraint(Sketcher.Constraint("Tangent", 28, 2, 29, 2))
sketch2.addConstraint(Sketcher.Constraint("Tangent", 29, 1, 22, 1))
sketch2.addConstraint(Sketcher.Constraint("Tangent", 32, 1, 33, 1))
sketch2.addConstraint(Sketcher.Constraint("Tangent", 33, 2, 34, 2))
sketch2.addConstraint(Sketcher.Constraint("Tangent", 34, 1, 35, 1))
sketch2.addConstraint(Sketcher.Constraint("Tangent", 35, 2, 36, 2))
sketch2.addConstraint(Sketcher.Constraint("Tangent", 36, 1, 37, 1))
sketch2.addConstraint(Sketcher.Constraint("Tangent", 37, 2, 38, 2))
sketch2.addConstraint(Sketcher.Constraint("Tangent", 38, 1, 39, 1))
sketch2.addConstraint(Sketcher.Constraint("Tangent", 39, 2, 32, 2))
sketch2.addConstraint(Sketcher.Constraint("Tangent", 42, 1, 43, 1))
sketch2.addConstraint(Sketcher.Constraint("Tangent", 43, 2, 44, 2))
sketch2.addConstraint(Sketcher.Constraint("Tangent", 44, 1, 45, 1))
sketch2.addConstraint(Sketcher.Constraint("Tangent", 45, 2, 46, 2))
sketch2.addConstraint(Sketcher.Constraint("Tangent", 46, 1, 47, 1))
sketch2.addConstraint(Sketcher.Constraint("Tangent", 47, 2, 48, 2))
sketch2.addConstraint(Sketcher.Constraint("Tangent", 48, 1, 49, 1))
sketch2.addConstraint(Sketcher.Constraint("Tangent", 49, 2, 42, 2))
sketch2.addConstraint(Sketcher.Constraint("Tangent", 53, 1, 54, 1))
sketch2.addConstraint(Sketcher.Constraint("Tangent", 54, 2, 55, 2))
sketch2.addConstraint(Sketcher.Constraint("Tangent", 55, 1, 56, 1))
sketch2.addConstraint(Sketcher.Constraint("Tangent", 56, 2, 57, 2))
sketch2.addConstraint(Sketcher.Constraint("Tangent", 57, 1, 58, 1))
sketch2.addConstraint(Sketcher.Constraint("Tangent", 58, 2, 59, 2))
sketch2.addConstraint(Sketcher.Constraint("Tangent", 59, 1, 60, 1))
sketch2.addConstraint(Sketcher.Constraint("Tangent", 60, 2, 53, 2))
sketch2.addConstraint(Sketcher.Constraint("Tangent", 63, 2, 64, 2))
sketch2.addConstraint(Sketcher.Constraint("Tangent", 64, 1, 65, 1))
sketch2.addConstraint(Sketcher.Constraint("Tangent", 65, 2, 66, 2))
sketch2.addConstraint(Sketcher.Constraint("Tangent", 66, 1, 67, 1))
sketch2.addConstraint(Sketcher.Constraint("Tangent", 67, 2, 68, 2))
sketch2.addConstraint(Sketcher.Constraint("Tangent", 68, 1, 69, 1))
sketch2.addConstraint(Sketcher.Constraint("Tangent", 69, 2, 70, 2))
sketch2.addConstraint(Sketcher.Constraint("Tangent", 70, 1, 63, 1))
sketch2.addConstraint(Sketcher.Constraint("Horizontal", 1))
sketch2.addConstraint(Sketcher.Constraint("Vertical", 3))
sketch2.addConstraint(Sketcher.Constraint("Horizontal", 5))
sketch2.addConstraint(Sketcher.Constraint("Vertical", 7))
sketch2.addConstraint(Sketcher.Constraint("Horizontal", 10))
sketch2.addConstraint(Sketcher.Constraint("Vertical", 12))
sketch2.addConstraint(Sketcher.Constraint("Horizontal", 14))
sketch2.addConstraint(Sketcher.Constraint("Vertical", 16))
sketch2.addConstraint(Sketcher.Constraint("Horizontal", 22))
sketch2.addConstraint(Sketcher.Constraint("Vertical", 24))
sketch2.addConstraint(Sketcher.Constraint("Horizontal", 26))
sketch2.addConstraint(Sketcher.Constraint("Vertical", 28))
sketch2.addConstraint(Sketcher.Constraint("Horizontal", 33))
sketch2.addConstraint(Sketcher.Constraint("Vertical", 35))
sketch2.addConstraint(Sketcher.Constraint("Horizontal", 37))
sketch2.addConstraint(Sketcher.Constraint("Vertical", 39))
sketch2.addConstraint(Sketcher.Constraint("Horizontal", 43))
sketch2.addConstraint(Sketcher.Constraint("Vertical", 45))
sketch2.addConstraint(Sketcher.Constraint("Horizontal", 47))
sketch2.addConstraint(Sketcher.Constraint("Vertical", 49))
sketch2.addConstraint(Sketcher.Constraint("Horizontal", 54))
sketch2.addConstraint(Sketcher.Constraint("Vertical", 56))
sketch2.addConstraint(Sketcher.Constraint("Horizontal", 58))
sketch2.addConstraint(Sketcher.Constraint("Vertical", 60))
sketch2.addConstraint(Sketcher.Constraint("Horizontal", 63))
sketch2.addConstraint(Sketcher.Constraint("Vertical", 65))
sketch2.addConstraint(Sketcher.Constraint("Horizontal", 67))
sketch2.addConstraint(Sketcher.Constraint("Vertical", 69))
sketch2.addConstraint(Sketcher.Constraint("Equal", 0, 2))
sketch2.addConstraint(Sketcher.Constraint("Equal", 2, 4))
sketch2.addConstraint(Sketcher.Constraint("Equal", 4, 6))
sketch2.addConstraint(Sketcher.Constraint("Equal", 6, 9))
sketch2.addConstraint(Sketcher.Constraint("Equal", 9, 11))
sketch2.addConstraint(Sketcher.Constraint("Equal", 11, 13))
sketch2.addConstraint(Sketcher.Constraint("Equal", 13, 15))
sketch2.addConstraint(Sketcher.Constraint("Equal", 8, 17))
sketch2.addConstraint(Sketcher.Constraint("Equal", 17, 18))
sketch2.addConstraint(Sketcher.Constraint("Equal", 18, 19))
sketch2.addConstraint(Sketcher.Constraint("Equal", 19, 20))
sketch2.addConstraint(Sketcher.Constraint("Equal", 20, 21))
sketch2.addConstraint(Sketcher.Constraint("Equal", 15, 23))
sketch2.addConstraint(Sketcher.Constraint("Equal", 23, 25))
sketch2.addConstraint(Sketcher.Constraint("Equal", 25, 27))
sketch2.addConstraint(Sketcher.Constraint("Equal", 27, 29))
sketch2.addConstraint(Sketcher.Constraint("Equal", 21, 30))
sketch2.addConstraint(Sketcher.Constraint("Equal", 30, 31))
sketch2.addConstraint(Sketcher.Constraint("Equal", 29, 32))
sketch2.addConstraint(Sketcher.Constraint("Equal", 32, 34))
sketch2.addConstraint(Sketcher.Constraint("Equal", 34, 36))
sketch2.addConstraint(Sketcher.Constraint("Equal", 36, 38))
sketch2.addConstraint(Sketcher.Constraint("Equal", 31, 40))
sketch2.addConstraint(Sketcher.Constraint("Equal", 40, 41))
sketch2.addConstraint(Sketcher.Constraint("Equal", 38, 42))
sketch2.addConstraint(Sketcher.Constraint("Equal", 42, 44))
sketch2.addConstraint(Sketcher.Constraint("Equal", 44, 46))
sketch2.addConstraint(Sketcher.Constraint("Equal", 46, 48))
sketch2.addConstraint(Sketcher.Constraint("Equal", 41, 50))
sketch2.addConstraint(Sketcher.Constraint("Equal", 50, 51))
sketch2.addConstraint(Sketcher.Constraint("Equal", 51, 52))
sketch2.addConstraint(Sketcher.Constraint("Equal", 48, 53))
sketch2.addConstraint(Sketcher.Constraint("Equal", 53, 55))
sketch2.addConstraint(Sketcher.Constraint("Equal", 55, 57))
sketch2.addConstraint(Sketcher.Constraint("Equal", 57, 59))
sketch2.addConstraint(Sketcher.Constraint("Equal", 52, 61))
sketch2.addConstraint(Sketcher.Constraint("Equal", 61, 62))
sketch2.addConstraint(Sketcher.Constraint("Equal", 59, 64))
sketch2.addConstraint(Sketcher.Constraint("Equal", 64, 66))
sketch2.addConstraint(Sketcher.Constraint("Equal", 66, 68))
sketch2.addConstraint(Sketcher.Constraint("Equal", 68, 70))
sketch2.addConstraint(Sketcher.Constraint("Equal", 62, 71))
sketch2.addConstraint(Sketcher.Constraint("PointOnObject", 0, 2, -1))
sketch2.addConstraint(Sketcher.Constraint("PointOnObject", 6, 2, -2))
sketch2.addConstraint(Sketcher.Constraint("Horizontal", 2, 3, 8, 3))
sketch2.addConstraint(Sketcher.Constraint("Horizontal", 8, 3, 17, 3))
sketch2.addConstraint(Sketcher.Constraint("Horizontal", 18, 3, 19, 3))
sketch2.addConstraint(Sketcher.Constraint("Horizontal", 17, 3, 20, 3))
sketch2.addConstraint(Sketcher.Constraint("Horizontal", 20, 3, 21, 3))
sketch2.addConstraint(Sketcher.Constraint("Horizontal", 15, 3, 23, 3))
sketch2.addConstraint(Sketcher.Constraint("Horizontal", 11, 3, 25, 3))
sketch2.addConstraint(Sketcher.Constraint("Horizontal", 19, 3, 30, 3))
sketch2.addConstraint(Sketcher.Constraint("Horizontal", 30, 3, 31, 3))
sketch2.addConstraint(Sketcher.Constraint("Horizontal", 40, 3, 41, 3))
sketch2.addConstraint(Sketcher.Constraint("Horizontal", 6, 3, 50, 3))
sketch2.addConstraint(Sketcher.Constraint("Horizontal", 50, 3, 51, 3))
sketch2.addConstraint(Sketcher.Constraint("Horizontal", 41, 3, 52, 3))
sketch2.addConstraint(Sketcher.Constraint("Horizontal", 38, 3, 53, 3))
sketch2.addConstraint(Sketcher.Constraint("Horizontal", 34, 3, 57, 3))
sketch2.addConstraint(Sketcher.Constraint("Horizontal", 52, 3, 61, 3))
sketch2.addConstraint(Sketcher.Constraint("Horizontal", 51, 3, 62, 3))
sketch2.addConstraint(Sketcher.Constraint("Horizontal", 48, 3, 64, 3))
sketch2.addConstraint(Sketcher.Constraint("Horizontal", 44, 3, 66, 3))
sketch2.addConstraint(Sketcher.Constraint("Horizontal", 62, 3, 71, 3))
sketch2.addConstraint(Sketcher.Constraint("Vertical", 8, 3, 18, 3))
sketch2.addConstraint(Sketcher.Constraint("Vertical", 17, 3, 19, 3))
sketch2.addConstraint(Sketcher.Constraint("Vertical", 20, 3, 30, 3))
sketch2.addConstraint(Sketcher.Constraint("Vertical", 21, 3, 31, 3))
sketch2.addConstraint(Sketcher.Constraint("Vertical", 15, 3, 32, 3))
sketch2.addConstraint(Sketcher.Constraint("Vertical", 13, 3, 34, 3))
sketch2.addConstraint(Sketcher.Constraint("Vertical", 18, 3, 40, 3))
sketch2.addConstraint(Sketcher.Constraint("Vertical", 19, 3, 41, 3))
sketch2.addConstraint(Sketcher.Constraint("Vertical", 38, 3, 42, 3))
sketch2.addConstraint(Sketcher.Constraint("Vertical", 36, 3, 44, 3))
sketch2.addConstraint(Sketcher.Constraint("Vertical", 40, 3, 50, 3))
sketch2.addConstraint(Sketcher.Constraint("Vertical", 41, 3, 51, 3))
sketch2.addConstraint(Sketcher.Constraint("Vertical", 30, 3, 52, 3))
sketch2.addConstraint(Sketcher.Constraint("Vertical", 29, 3, 53, 3))
sketch2.addConstraint(Sketcher.Constraint("Vertical", 25, 3, 55, 3))
sketch2.addConstraint(Sketcher.Constraint("Vertical", 31, 3, 61, 3))
sketch2.addConstraint(Sketcher.Constraint("Vertical", 52, 3, 62, 3))
sketch2.addConstraint(Sketcher.Constraint("Vertical", 57, 3, 64, 3))
sketch2.addConstraint(Sketcher.Constraint("Vertical", 59, 3, 68, 3))
sketch2.addConstraint(Sketcher.Constraint("Vertical", 61, 3, 71, 3))
sketch2.addConstraint(Sketcher.Constraint("Equal", 14, 22))
sketch2.addConstraint(Sketcher.Constraint("Equal", 28, 45))
sketch2.addConstraint(Sketcher.Constraint("Radius", 0, 5.0))
sketch2.addConstraint(Sketcher.Constraint("DistanceX", 1, 1, 1, 2, 140.0))
sketch2.addConstraint(Sketcher.Constraint("DistanceY", 3, 1, 3, 2, 67.0))
sketch2.addConstraint(Sketcher.Constraint("Diameter", 8, 3.556))
sketch2.addConstraint(Sketcher.Constraint("DistanceY", -1, 1, 9, 3, 15.0))
sketch2.addConstraint(Sketcher.Constraint("DistanceX", -1, 1, 17, 3, 62.0))
sketch2.addConstraint(Sketcher.Constraint("DistanceX", -1, 1, 20, 3, 88.0))
sketch2.addConstraint(Sketcher.Constraint("DistanceY", -1, 1, 46, 3, 62.0))
sketch2.addConstraint(Sketcher.Constraint("DistanceX", -1, 1, 8, 3, 7.5))
sketch2.addConstraint(Sketcher.Constraint("DistanceX", -1, 1, 21, 3, 142.5))
sketch2.addConstraint(Sketcher.Constraint("DistanceX", 10, 2, 10, 1, 41.788059))
sketch2.addConstraint(Sketcher.Constraint("DistanceY", 35, 1, 35, 2, 2.459051))
sketch2.addConstraint(Sketcher.Constraint("DistanceY", 12, 1, 12, 2, 2.333333))
sketch2.addConstraint(Sketcher.Constraint("DistanceX", -1, 1, 9, 3, 60.399714))
sketch2.addConstraint(Sketcher.Constraint("DistanceY", -1, 1, 18, 3, 27.333333))
sketch2.addConstraint(Sketcher.Constraint("DistanceX", -1, 1, 23, 3, 131.388345))
sketch2.addConstraint(Sketcher.Constraint("DistanceY", -1, 1, 32, 3, 37.333333))
sketch2.addConstraint(Sketcher.Constraint("DistanceY", -1, 1, 40, 3, 49.666667))
pad2 = doc.addObject("PartDesign::Pad", "Pad001")
body.addObject(pad2)
pad2.Profile = sketch2
pad2.Length = 4

doc.recompute()
